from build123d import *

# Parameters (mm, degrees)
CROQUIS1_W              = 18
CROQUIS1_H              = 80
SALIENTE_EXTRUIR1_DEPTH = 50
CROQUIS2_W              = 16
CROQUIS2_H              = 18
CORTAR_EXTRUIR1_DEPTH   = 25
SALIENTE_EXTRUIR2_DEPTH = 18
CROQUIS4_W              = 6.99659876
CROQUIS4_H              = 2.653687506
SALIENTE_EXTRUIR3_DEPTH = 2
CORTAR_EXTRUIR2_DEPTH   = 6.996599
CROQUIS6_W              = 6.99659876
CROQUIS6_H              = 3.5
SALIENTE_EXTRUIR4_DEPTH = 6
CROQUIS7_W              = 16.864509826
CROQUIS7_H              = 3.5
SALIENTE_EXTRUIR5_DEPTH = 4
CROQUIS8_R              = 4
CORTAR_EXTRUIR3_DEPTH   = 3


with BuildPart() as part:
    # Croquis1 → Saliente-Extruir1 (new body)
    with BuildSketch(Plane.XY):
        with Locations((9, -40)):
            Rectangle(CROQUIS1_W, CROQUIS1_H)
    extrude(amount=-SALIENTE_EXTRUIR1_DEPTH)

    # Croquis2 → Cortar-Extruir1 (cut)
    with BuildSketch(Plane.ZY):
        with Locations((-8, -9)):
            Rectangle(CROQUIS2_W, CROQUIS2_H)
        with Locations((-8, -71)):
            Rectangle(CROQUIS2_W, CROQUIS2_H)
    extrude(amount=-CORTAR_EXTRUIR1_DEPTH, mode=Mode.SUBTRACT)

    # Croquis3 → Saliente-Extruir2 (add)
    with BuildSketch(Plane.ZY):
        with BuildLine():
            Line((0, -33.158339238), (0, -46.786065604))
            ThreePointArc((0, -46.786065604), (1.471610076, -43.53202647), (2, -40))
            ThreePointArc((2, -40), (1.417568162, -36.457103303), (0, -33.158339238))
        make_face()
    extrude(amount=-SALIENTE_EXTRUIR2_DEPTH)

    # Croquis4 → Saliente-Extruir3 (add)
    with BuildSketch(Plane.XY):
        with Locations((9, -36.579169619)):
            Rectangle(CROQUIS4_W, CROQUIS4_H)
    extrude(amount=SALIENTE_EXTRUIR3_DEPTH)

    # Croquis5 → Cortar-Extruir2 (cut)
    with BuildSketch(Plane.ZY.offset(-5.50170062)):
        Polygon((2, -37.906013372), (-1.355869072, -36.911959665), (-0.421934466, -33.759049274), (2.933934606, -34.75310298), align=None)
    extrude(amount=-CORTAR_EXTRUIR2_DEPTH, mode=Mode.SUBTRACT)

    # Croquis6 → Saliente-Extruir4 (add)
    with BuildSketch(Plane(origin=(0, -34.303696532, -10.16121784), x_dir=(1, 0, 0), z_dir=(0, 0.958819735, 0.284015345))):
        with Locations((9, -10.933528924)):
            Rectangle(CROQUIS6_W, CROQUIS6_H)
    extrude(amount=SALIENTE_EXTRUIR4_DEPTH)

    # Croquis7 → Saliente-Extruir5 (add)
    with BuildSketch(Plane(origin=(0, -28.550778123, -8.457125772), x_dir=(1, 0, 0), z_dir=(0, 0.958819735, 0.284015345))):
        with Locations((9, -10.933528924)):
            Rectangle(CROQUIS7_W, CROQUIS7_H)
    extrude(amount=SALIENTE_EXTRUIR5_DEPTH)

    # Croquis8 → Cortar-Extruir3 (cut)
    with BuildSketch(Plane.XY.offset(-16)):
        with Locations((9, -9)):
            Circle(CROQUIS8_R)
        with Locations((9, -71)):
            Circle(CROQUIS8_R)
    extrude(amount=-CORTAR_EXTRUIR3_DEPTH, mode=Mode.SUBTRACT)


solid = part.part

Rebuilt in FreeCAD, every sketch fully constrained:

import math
import FreeCAD as App
import Part
import Sketcher

V = App.Vector
Q = App.Units.Quantity


def add_polygon(sketch, points):
    """Adds a closed chain of lines whose ends are joined by coincident constraints."""
    first, n = sketch.GeometryCount, len(points)
    for a, b in zip(points, points[1:] + points[:1]):
        sketch.addGeometry(Part.LineSegment(App.Vector(*a, 0), App.Vector(*b, 0)), False)
    for i in range(n):
        sketch.addConstraint(Sketcher.Constraint("Coincident", first + i, 2, first + (i + 1) % n, 1))

doc = App.newDocument("Part")
body = doc.addObject("PartDesign::Body", "Body")

# Sketch on XY plane
sketch1 = body.newObject("Sketcher::SketchObject", "Sketch")
sketch1.AttachmentSupport = (doc.getObject("XY_Plane"), [""])
sketch1.MapMode = "FlatFace"
add_polygon(sketch1, [(0, 0), (0, -80), (18, -80), (18, 0)])  # lines 0-3
sketch1.addConstraint(Sketcher.Constraint("Vertical", 0))
sketch1.addConstraint(Sketcher.Constraint("Horizontal", 1))
sketch1.addConstraint(Sketcher.Constraint("Vertical", 2))
sketch1.addConstraint(Sketcher.Constraint("Horizontal", 3))
sketch1.addConstraint(Sketcher.Constraint("Coincident", 3, 2, -1, 1))
sketch1.addConstraint(Sketcher.Constraint("DistanceX", 1, 1, 1, 2, 18.0))
sketch1.addConstraint(Sketcher.Constraint("DistanceY", 0, 2, 0, 1, 80.0))
pad1 = body.newObject("PartDesign::Pad", "Pad")
pad1.Profile = sketch1
pad1.Length = 50
pad1.Reversed = True

# Sketch on YZ plane
sketch2 = body.newObject("Sketcher::SketchObject", "Sketch001")
sketch2.AttachmentSupport = (doc.getObject("YZ_Plane"), [""])
sketch2.MapMode = "FlatFace"
add_polygon(sketch2, [(0, -16), (-18, -16), (-18, 0), (0, 0)])  # lines 0-3
add_polygon(sketch2, [(-62, -16), (-80, -16), (-80, 0), (-62, 0)])  # lines 4-7
sketch2.addConstraint(Sketcher.Constraint("Horizontal", 0))
sketch2.addConstraint(Sketcher.Constraint("Vertical", 1))
sketch2.addConstraint(Sketcher.Constraint("Horizontal", 2))
sketch2.addConstraint(Sketcher.Constraint("Vertical", 3))
sketch2.addConstraint(Sketcher.Constraint("Horizontal", 4))
sketch2.addConstraint(Sketcher.Constraint("Vertical", 5))
sketch2.addConstraint(Sketcher.Constraint("Horizontal", 6))
sketch2.addConstraint(Sketcher.Constraint("Vertical", 7))
sketch2.addConstraint(Sketcher.Constraint("Coincident", 2, 2, -1, 1))
sketch2.addConstraint(Sketcher.Constraint("PointOnObject", 5, 2, -1))
sketch2.addConstraint(Sketcher.Constraint("Horizontal", 3, 2, 4, 2))
sketch2.addConstraint(Sketcher.Constraint("Equal", 2, 4))
sketch2.addConstraint(Sketcher.Constraint("DistanceX", 0, 2, 0, 1, 18.0))
sketch2.addConstraint(Sketcher.Constraint("DistanceY", 1, 1, 1, 2, 16.0))
sketch2.addConstraint(Sketcher.Constraint("DistanceX", 4, 2, -1, 1, 80.0))
pocket1 = body.newObject("PartDesign::Pocket", "Pocket")
pocket1.Profile = sketch2
pocket1.Length = 25
pocket1.Reversed = True

# Sketch on YZ plane
sketch3 = body.newObject("Sketcher::SketchObject", "Sketch002")
sketch3.AttachmentSupport = (doc.getObject("YZ_Plane"), [""])
sketch3.MapMode = "FlatFace"
sketch3.addGeometry(Part.LineSegment(V(-33, 0, 0), V(-47, 0, 0)), False)
sketch3.addGeometry(Part.ArcOfCircle(Part.Circle(V(-40, -11, 0), V(0, 0, 1), 13), math.radians(91), math.radians(122)), False)
sketch3.addGeometry(Part.ArcOfCircle(Part.Circle(V(-41, -13, 0), V(0, 0, 1), 15), math.radians(60), math.radians(88)), False)
sketch3.addConstraint(Sketcher.Constraint("Coincident", 0, 2, 1, 2))
sketch3.addConstraint(Sketcher.Constraint("Coincident", 1, 1, 2, 2))
sketch3.addConstraint(Sketcher.Constraint("Coincident", 2, 1, 0, 1))
sketch3.addConstraint(Sketcher.Constraint("Horizontal", 0))
sketch3.addConstraint(Sketcher.Constraint("PointOnObject", 0, 2, -1))
sketch3.addConstraint(Sketcher.Constraint("DistanceX", 1, 1, -1, 1, 40.0))
sketch3.addConstraint(Sketcher.Constraint("DistanceY", -1, 1, 1, 1, 2.0))
sketch3.addConstraint(Sketcher.Constraint("Radius", 1, 12.970605))
sketch3.addConstraint(Sketcher.Constraint("Radius", 2, 14.816135))
sketch3.addConstraint(Sketcher.Constraint("DistanceX", 0, 2, 0, 1, 13.627726))
sketch3.addConstraint(Sketcher.Constraint("DistanceX", 2, 3, -1, 1, 40.614271))
pad2 = body.newObject("PartDesign::Pad", "Pad001")
pad2.Profile = sketch3
pad2.Length = 18

# Sketch on XY plane
sketch4 = body.newObject("Sketcher::SketchObject", "Sketch003")
sketch4.AttachmentSupport = (doc.getObject("XY_Plane"), [""])
sketch4.MapMode = "FlatFace"
add_polygon(sketch4, [(5.5, -35.3), (5.5, -37.9), (12.5, -37.9), (12.5, -35.3)])  # lines 0-3
sketch4.addConstraint(Sketcher.Constraint("Vertical", 0))
sketch4.addConstraint(Sketcher.Constraint("Horizontal", 1))
sketch4.addConstraint(Sketcher.Constraint("Vertical", 2))
sketch4.addConstraint(Sketcher.Constraint("Horizontal", 3))
sketch4.addConstraint(Sketcher.Constraint("DistanceX", 1, 1, 1, 2, 6.996599))
sketch4.addConstraint(Sketcher.Constraint("DistanceX", -1, 1, 0, 2, 5.501701))
sketch4.addConstraint(Sketcher.Constraint("DistanceY", 0, 2, 0, 1, 2.653688))
sketch4.addConstraint(Sketcher.Constraint("DistanceY", 0, 2, -1, 1, 37.906013))
pad3 = body.newObject("PartDesign::Pad", "Pad002")
pad3.Profile = sketch4
pad3.Length = 2

# Sketch on YZ plane
sketch5 = body.newObject("Sketcher::SketchObject", "Sketch004")
sketch5.AttachmentSupport = (doc.getObject("YZ_Plane"), [""])
sketch5.MapMode = "FlatFace"
sketch5.AttachmentOffset = App.Placement(V(0, 0, 5.501701), App.Rotation())
add_polygon(sketch5, [(-36.9, -1.4), (-37.9, 2), (-34.8, 2.9), (-33.8, -0.4)])  # lines 0-3
sketch5.addConstraint(Sketcher.Constraint("Perpendicular", 0, 1))
sketch5.addConstraint(Sketcher.Constraint("Perpendicular", 1, 2))
sketch5.addConstraint(Sketcher.Constraint("Perpendicular", 2, 3))
sketch5.addConstraint(Sketcher.Constraint("DistanceY", -1, 1, 0, 2, 2.0))
sketch5.addConstraint(Sketcher.Constraint("Angle", 0, Q("106.5 deg")))
sketch5.addConstraint(Sketcher.Constraint("Distance", 0, 3.5))
sketch5.addConstraint(Sketcher.Constraint("DistanceX", 2, 2, -1, 1, 33.759049))
sketch5.addConstraint(Sketcher.Constraint("DistanceX", 3, 2, -1, 1, 36.91196))
pocket2 = body.newObject("PartDesign::Pocket", "Pocket001")
pocket2.Profile = sketch5
pocket2.Length = 6.996599
pocket2.Reversed = True

# Sketch on an angled plane
sketch6 = body.newObject("Sketcher::SketchObject", "Sketch005")
sketch6.Placement = App.Placement(V(0, -34.303697, -10.161218), App.Rotation(V(1, 0, 0), V(0, 0.284015345, -0.958819735), V(0, 0.958819735, 0.284015345), "ZXY"))
add_polygon(sketch6, [(5.5, -9.2), (5.5, -12.7), (12.5, -12.7), (12.5, -9.2)])  # lines 0-3
sketch6.addConstraint(Sketcher.Constraint("Vertical", 0))
sketch6.addConstraint(Sketcher.Constraint("Horizontal", 1))
sketch6.addConstraint(Sketcher.Constraint("Vertical", 2))
sketch6.addConstraint(Sketcher.Constraint("Horizontal", 3))
sketch6.addConstraint(Sketcher.Constraint("DistanceY", 0, 2, 0, 1, 3.5))
sketch6.addConstraint(Sketcher.Constraint("DistanceX", 1, 1, 1, 2, 6.996599))
sketch6.addConstraint(Sketcher.Constraint("DistanceX", -1, 1, 0, 2, 5.501701))
sketch6.addConstraint(Sketcher.Constraint("DistanceY", 0, 2, -1, 1, 12.683529))
pad4 = body.newObject("PartDesign::Pad", "Pad003")
pad4.Profile = sketch6
pad4.Length = 6

# Sketch on an angled plane
sketch7 = body.newObject("Sketcher::SketchObject", "Sketch006")
sketch7.Placement = App.Placement(V(0, -28.550778, -8.457126), App.Rotation(V(1, 0, 0), V(0, 0.284015345, -0.958819735), V(0, 0.958819735, 0.284015345), "ZXY"))
add_polygon(sketch7, [(0.6, -9.2), (0.6, -12.7), (17.4, -12.7), (17.4, -9.2)])  # lines 0-3
sketch7.addConstraint(Sketcher.Constraint("Vertical", 0))
sketch7.addConstraint(Sketcher.Constraint("Horizontal", 1))
sketch7.addConstraint(Sketcher.Constraint("Vertical", 2))
sketch7.addConstraint(Sketcher.Constraint("Horizontal", 3))
sketch7.addConstraint(Sketcher.Constraint("DistanceY", 0, 2, 0, 1, 3.5))
sketch7.addConstraint(Sketcher.Constraint("DistanceX", 1, 1, 1, 2, 16.86451))
sketch7.addConstraint(Sketcher.Constraint("DistanceY", 0, 2, -1, 1, 12.683529))
sketch7.addConstraint(Sketcher.Constraint("DistanceX", -1, 1, 0, 2, 0.567745))
pad5 = body.newObject("PartDesign::Pad", "Pad004")
pad5.Profile = sketch7
pad5.Length = 4

# Sketch on XY plane
sketch8 = body.newObject("Sketcher::SketchObject", "Sketch007")
sketch8.AttachmentSupport = (doc.getObject("XY_Plane"), [""])
sketch8.MapMode = "FlatFace"
sketch8.AttachmentOffset = App.Placement(V(0, 0, -16), App.Rotation())
sketch8.addGeometry(Part.Circle(V(9, -9, 0), V(0, 0, 1), 4), False)
sketch8.addGeometry(Part.Circle(V(9, -71, 0), V(0, 0, 1), 4), False)
sketch8.addConstraint(Sketcher.Constraint("Equal", 0, 1))
sketch8.addConstraint(Sketcher.Constraint("Vertical", 0, 3, 1, 3))
sketch8.addConstraint(Sketcher.Constraint("Diameter", 0, 8.0))
sketch8.addConstraint(Sketcher.Constraint("DistanceX", -1, 1, 0, 3, 9.0))
sketch8.addConstraint(Sketcher.Constraint("DistanceY", 0, 3, -1, 1, 9.0))
sketch8.addConstraint(Sketcher.Constraint("DistanceY", 1, 3, -1, 1, 71.0))
pocket3 = body.newObject("PartDesign::Pocket", "Pocket002")
pocket3.Profile = sketch8
pocket3.Length = 3

doc.recompute()
